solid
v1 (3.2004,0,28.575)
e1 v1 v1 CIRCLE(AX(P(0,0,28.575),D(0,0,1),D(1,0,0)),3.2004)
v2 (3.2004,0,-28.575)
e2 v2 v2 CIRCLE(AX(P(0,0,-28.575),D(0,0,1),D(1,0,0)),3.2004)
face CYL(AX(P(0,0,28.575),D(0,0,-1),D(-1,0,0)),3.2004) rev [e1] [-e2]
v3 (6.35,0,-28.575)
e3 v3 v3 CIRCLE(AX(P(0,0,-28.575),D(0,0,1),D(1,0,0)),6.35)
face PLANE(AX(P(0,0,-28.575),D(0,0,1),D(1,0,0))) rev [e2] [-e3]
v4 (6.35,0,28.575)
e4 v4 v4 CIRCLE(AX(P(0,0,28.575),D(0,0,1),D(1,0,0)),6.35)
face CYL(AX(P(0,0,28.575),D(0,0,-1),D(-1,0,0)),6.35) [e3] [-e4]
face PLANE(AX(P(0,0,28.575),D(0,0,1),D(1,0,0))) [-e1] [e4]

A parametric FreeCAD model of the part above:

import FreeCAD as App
import Part
import Sketcher
from FreeCAD import Vector
Q = App.Units.Quantity

doc = App.newDocument("Part")
body = doc.addObject("PartDesign::Body", "Body")

# Sketch on XY plane
sketch1 = doc.addObject("Sketcher::SketchObject", "Sketch")
body.addObject(sketch1)
sketch1.AttachmentSupport = (doc.XY_Plane, [""])
sketch1.MapMode = "FlatFace"
sketch1.addGeometry([
    Part.Circle(Vector(0, 0, 0), Vector(0, 0, 1), 6.3),
    Part.Circle(Vector(0, 0, 0), Vector(0, 0, 1), 3.2),
], False)
sketch1.addConstraint([
    Sketcher.Constraint("Coincident", 0, 3, -1, 1),
    Sketcher.Constraint("Coincident", 1, 3, -1, 1),
    Sketcher.Constraint("Diameter", 0, Q("0.5 in")),
    Sketcher.Constraint("Diameter", 1, Q("0.252 in")),
])
pad1 = doc.addObject("PartDesign::Pad", "Pad")
body.addObject(pad1)
pad1.Profile = sketch1
pad1.Length = Q("2.25 in")
pad1.Midplane = True

doc.recompute()
